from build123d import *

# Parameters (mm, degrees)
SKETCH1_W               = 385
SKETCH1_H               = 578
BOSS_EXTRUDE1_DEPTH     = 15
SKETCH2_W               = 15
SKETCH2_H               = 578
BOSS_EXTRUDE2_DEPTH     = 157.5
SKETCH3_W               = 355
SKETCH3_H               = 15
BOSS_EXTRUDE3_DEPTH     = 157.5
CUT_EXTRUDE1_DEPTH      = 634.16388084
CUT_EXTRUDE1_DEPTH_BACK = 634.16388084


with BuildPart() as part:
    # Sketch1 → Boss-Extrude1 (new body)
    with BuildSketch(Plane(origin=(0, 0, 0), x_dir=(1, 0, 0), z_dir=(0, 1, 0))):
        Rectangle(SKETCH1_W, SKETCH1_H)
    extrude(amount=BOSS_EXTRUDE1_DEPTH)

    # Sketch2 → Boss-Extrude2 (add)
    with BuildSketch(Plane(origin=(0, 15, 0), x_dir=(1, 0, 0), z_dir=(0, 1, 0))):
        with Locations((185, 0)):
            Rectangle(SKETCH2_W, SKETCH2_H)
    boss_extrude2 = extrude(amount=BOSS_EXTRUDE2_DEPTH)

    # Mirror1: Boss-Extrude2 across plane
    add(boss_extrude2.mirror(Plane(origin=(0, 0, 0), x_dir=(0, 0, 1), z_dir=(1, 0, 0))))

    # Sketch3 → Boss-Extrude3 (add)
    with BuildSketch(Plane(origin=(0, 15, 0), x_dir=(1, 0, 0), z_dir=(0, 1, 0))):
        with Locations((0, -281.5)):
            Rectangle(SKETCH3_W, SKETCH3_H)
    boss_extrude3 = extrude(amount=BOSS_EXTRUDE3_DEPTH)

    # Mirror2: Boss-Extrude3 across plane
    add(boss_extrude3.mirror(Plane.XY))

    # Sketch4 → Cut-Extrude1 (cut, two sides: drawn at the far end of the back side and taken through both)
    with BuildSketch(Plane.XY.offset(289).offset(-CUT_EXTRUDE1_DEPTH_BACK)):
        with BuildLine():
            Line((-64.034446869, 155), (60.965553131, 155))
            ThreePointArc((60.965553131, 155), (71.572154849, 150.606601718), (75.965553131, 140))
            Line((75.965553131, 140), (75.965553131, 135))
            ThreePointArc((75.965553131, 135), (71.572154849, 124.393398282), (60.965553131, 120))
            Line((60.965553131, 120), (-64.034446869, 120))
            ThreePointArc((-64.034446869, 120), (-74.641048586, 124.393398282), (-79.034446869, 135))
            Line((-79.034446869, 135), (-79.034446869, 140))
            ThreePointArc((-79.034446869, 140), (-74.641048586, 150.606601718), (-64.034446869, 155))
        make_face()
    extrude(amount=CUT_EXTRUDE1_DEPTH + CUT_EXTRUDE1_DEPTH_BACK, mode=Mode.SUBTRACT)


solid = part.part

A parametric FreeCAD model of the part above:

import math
import FreeCAD as App
import Part
import Sketcher


def add_polygon(sketch, points):
    """Adds a closed chain of lines whose ends are joined by coincident constraints."""
    first, n = sketch.GeometryCount, len(points)
    for a, b in zip(points, points[1:] + points[:1]):
        sketch.addGeometry(Part.LineSegment(App.Vector(*a, 0), App.Vector(*b, 0)), False)
    for i in range(n):
        sketch.addConstraint(Sketcher.Constraint("Coincident", first + i, 2, first + (i + 1) % n, 1))

doc = App.newDocument("Part")
body = doc.addObject("PartDesign::Body", "Body")

# Sketch on XZ plane
sketch1 = doc.addObject("Sketcher::SketchObject", "Sketch")
body.addObject(sketch1)
sketch1.AttachmentSupport = (doc.XZ_Plane, [""])
sketch1.MapMode = "FlatFace"
add_polygon(sketch1, [(-192, -289), (-192, 289), (192, 289), (192, -289)])  # lines 0-3
sketch1.addConstraint(Sketcher.Constraint("Vertical", 0))
sketch1.addConstraint(Sketcher.Constraint("Horizontal", 1))
sketch1.addConstraint(Sketcher.Constraint("Vertical", 2))
sketch1.addConstraint(Sketcher.Constraint("Horizontal", 3))
sketch1.addConstraint(Sketcher.Constraint("Symmetric", 0, 2, 2, 2, -1, 1))
sketch1.addConstraint(Sketcher.Constraint("DistanceX", 1, 1, 1, 2, 385.0))
sketch1.addConstraint(Sketcher.Constraint("DistanceY", 0, 1, 0, 2, 578.0))
pad1 = doc.addObject("PartDesign::Pad", "Pad")
body.addObject(pad1)
pad1.Profile = sketch1
pad1.Length = 15
pad1.Reversed = True

# Sketch on XZ plane
sketch2 = doc.addObject("Sketcher::SketchObject", "Sketch001")
body.addObject(sketch2)
sketch2.AttachmentSupport = (doc.XZ_Plane, [""])
sketch2.MapMode = "FlatFace"
sketch2.AttachmentOffset = App.Placement(App.Vector(0, 0, -15), App.Rotation())
add_polygon(sketch2, [(178, -289), (178, 289), (192, 289), (192, -289)])  # lines 0-3
sketch2.addConstraint(Sketcher.Constraint("Vertical", 0))
sketch2.addConstraint(Sketcher.Constraint("Horizontal", 1))
sketch2.addConstraint(Sketcher.Constraint("Vertical", 2))
sketch2.addConstraint(Sketcher.Constraint("Horizontal", 3))
sketch2.addConstraint(Sketcher.Constraint("DistanceX", 1, 1, 1, 2, 15.0))
sketch2.addConstraint(Sketcher.Constraint("DistanceY", 0, 1, 0, 2, 578.0))
sketch2.addConstraint(Sketcher.Constraint("DistanceY", -1, 1, 0, 2, 289.0))
sketch2.addConstraint(Sketcher.Constraint("DistanceX", -1, 1, 0, 2, 177.5))
pad2 = doc.addObject("PartDesign::Pad", "Pad001")
body.addObject(pad2)
pad2.Profile = sketch2
pad2.Length = 157.5
pad2.Reversed = True
doc.recompute()

mirrored = doc.addObject("PartDesign::Mirrored", "Mirrored")
body.addObject(mirrored)
mirrored.Originals = [pad2]
mirrored.MirrorPlane = (doc.YZ_Plane, [""])
body.Tip = mirrored

# Sketch on XZ plane
sketch3 = doc.addObject("Sketcher::SketchObject", "Sketch002")
body.addObject(sketch3)
sketch3.AttachmentSupport = (doc.XZ_Plane, [""])
sketch3.MapMode = "FlatFace"
sketch3.AttachmentOffset = App.Placement(App.Vector(0, 0, -15), App.Rotation())
add_polygon(sketch3, [(-178, 274), (-178, 289), (178, 289), (178, 274)])  # lines 0-3
sketch3.addConstraint(Sketcher.Constraint("Vertical", 0))
sketch3.addConstraint(Sketcher.Constraint("Horizontal", 1))
sketch3.addConstraint(Sketcher.Constraint("Vertical", 2))
sketch3.addConstraint(Sketcher.Constraint("Horizontal", 3))
sketch3.addConstraint(Sketcher.Constraint("DistanceX", 1, 1, 1, 2, 355.0))
sketch3.addConstraint(Sketcher.Constraint("DistanceY", 0, 1, 0, 2, 15.0))
sketch3.addConstraint(Sketcher.Constraint("DistanceY", -1, 1, 0, 2, 289.0))
sketch3.addConstraint(Sketcher.Constraint("DistanceX", 0, 2, -1, 1, 177.5))
pad3 = doc.addObject("PartDesign::Pad", "Pad002")
body.addObject(pad3)
pad3.Profile = sketch3
pad3.Length = 157.5
pad3.Reversed = True
doc.recompute()

mirrored2 = doc.addObject("PartDesign::Mirrored", "Mirrored001")
body.addObject(mirrored2)
mirrored2.Originals = [pad3]
mirrored2.MirrorPlane = (doc.XY_Plane, [""])
body.Tip = mirrored2

# Sketch on XY plane
sketch4 = doc.addObject("Sketcher::SketchObject", "Sketch003")
body.addObject(sketch4)
sketch4.AttachmentSupport = (doc.XY_Plane, [""])
sketch4.MapMode = "FlatFace"
sketch4.AttachmentOffset = App.Placement(App.Vector(0, 0, 289), App.Rotation())
sketch4.addGeometry(Part.LineSegment(App.Vector(61, 155, 0), App.Vector(-64, 155, 0)), False)
sketch4.addGeometry(Part.ArcOfCircle(Part.Circle(App.Vector(-64, 140, 0), App.Vector(0, 0, 1), 15), math.radians(90), math.radians(180)), False)
sketch4.addGeometry(Part.LineSegment(App.Vector(-79, 140, 0), App.Vector(-79, 135, 0)), False)
sketch4.addGeometry(Part.ArcOfCircle(Part.Circle(App.Vector(-64, 135, 0), App.Vector(0, 0, 1), 15), math.radians(-180), math.radians(-90)), False)
sketch4.addGeometry(Part.LineSegment(App.Vector(-64, 120, 0), App.Vector(61, 120, 0)), False)
sketch4.addGeometry(Part.ArcOfCircle(Part.Circle(App.Vector(61, 135, 0), App.Vector(0, 0, 1), 15), math.radians(-90), math.radians(0)), False)
sketch4.addGeometry(Part.LineSegment(App.Vector(76, 135, 0), App.Vector(76, 140, 0)), False)
sketch4.addGeometry(Part.ArcOfCircle(Part.Circle(App.Vector(61, 140, 0), App.Vector(0, 0, 1), 15), math.radians(0), math.radians(90)), False)
sketch4.addConstraint(Sketcher.Constraint("Tangent", 0, 2, 1, 1))
sketch4.addConstraint(Sketcher.Constraint("Tangent", 1, 2, 2, 1))
sketch4.addConstraint(Sketcher.Constraint("Tangent", 2, 2, 3, 1))
sketch4.addConstraint(Sketcher.Constraint("Tangent", 3, 2, 4, 1))
sketch4.addConstraint(Sketcher.Constraint("Tangent", 4, 2, 5, 1))
sketch4.addConstraint(Sketcher.Constraint("Tangent", 5, 2, 6, 1))
sketch4.addConstraint(Sketcher.Constraint("Tangent", 6, 2, 7, 1))
sketch4.addConstraint(Sketcher.Constraint("Tangent", 7, 2, 0, 1))
sketch4.addConstraint(Sketcher.Constraint("Horizontal", 0))
sketch4.addConstraint(Sketcher.Constraint("Vertical", 2))
sketch4.addConstraint(Sketcher.Constraint("Horizontal", 4))
sketch4.addConstraint(Sketcher.Constraint("Vertical", 6))
sketch4.addConstraint(Sketcher.Constraint("Equal", 1, 3))
sketch4.addConstraint(Sketcher.Constraint("Equal", 3, 5))
sketch4.addConstraint(Sketcher.Constraint("Equal", 5, 7))
sketch4.addConstraint(Sketcher.Constraint("Radius", 1, 15.0))
sketch4.addConstraint(Sketcher.Constraint("DistanceX", 0, 2, 0, 1, 125.0))
sketch4.addConstraint(Sketcher.Constraint("DistanceY", 2, 2, 2, 1, 5.0))
sketch4.addConstraint(Sketcher.Constraint("DistanceY", -1, 1, 1, 3, 140.0))
sketch4.addConstraint(Sketcher.Constraint("DistanceX", 1, 3, -1, 1, 64.034447))
pocket1 = doc.addObject("PartDesign::Pocket", "Pocket")
body.addObject(pocket1)
pocket1.Profile = sketch4
pocket1.Type = "ThroughAll"
pocket1.Midplane = True

doc.recompute()
